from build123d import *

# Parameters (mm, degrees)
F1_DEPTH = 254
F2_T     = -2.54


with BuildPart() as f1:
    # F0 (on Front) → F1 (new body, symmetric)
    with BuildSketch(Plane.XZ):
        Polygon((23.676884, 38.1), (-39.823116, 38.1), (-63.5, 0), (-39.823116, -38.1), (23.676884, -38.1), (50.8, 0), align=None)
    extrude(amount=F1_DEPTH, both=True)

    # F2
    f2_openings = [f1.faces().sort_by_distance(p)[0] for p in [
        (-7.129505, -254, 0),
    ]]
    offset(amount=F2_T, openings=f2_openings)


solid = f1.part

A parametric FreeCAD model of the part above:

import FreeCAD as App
import Part
import Sketcher
Q = App.Units.Quantity


def faces_at(feature, points):
    """Names of the faces that lie closest to the given points."""
    faces = feature.Shape.Faces
    near = lambda p: min(range(len(faces)), key=lambda i: faces[i].distToShape(Part.Vertex(*p))[0])
    return sorted({f"Face{near(p) + 1}" for p in points})

doc = App.newDocument("Part")
params = doc.addObject("Spreadsheet::Sheet", "Params")
for row, (alias, value) in enumerate([
    ("sketch1_width", "2.5 in"),
    ("pad1_length", "20 in"),
    ("thickness_wall", "0.1 in"),
], start=1):
    params.set(f"A{row}", alias)
    params.set(f"B{row}", "=" + value)
    params.setAlias(f"B{row}", alias)

body = doc.addObject("PartDesign::Body", "Body")

# Sketch on XZ plane
sketch1 = body.newObject("Sketcher::SketchObject", "Sketch")
sketch1.AttachmentSupport = (doc.getObject("XZ_Plane"), [""])
sketch1.MapMode = "FlatFace"
sketch1.addGeometry([
    Part.LineSegment(App.Vector(24, 38, 0), App.Vector(-40, 38, 0)),  # 0
    Part.LineSegment(App.Vector(-40, 38, 0), App.Vector(-64, 0, 0)),  # 1
    Part.LineSegment(App.Vector(-64, 0, 0), App.Vector(-40, -38, 0)),  # 2
    Part.LineSegment(App.Vector(-40, -38, 0), App.Vector(24, -38, 0)),  # 3
    Part.LineSegment(App.Vector(24, -38, 0), App.Vector(51, 0, 0)),  # 4
    Part.LineSegment(App.Vector(51, 0, 0), App.Vector(24, 38, 0)),  # 5
], False)
sketch1.addConstraint([
    Sketcher.Constraint("Coincident", 0, 2, 1, 1),
    Sketcher.Constraint("Coincident", 1, 2, 2, 1),
    Sketcher.Constraint("Coincident", 2, 2, 3, 1),
    Sketcher.Constraint("Coincident", 3, 2, 4, 1),
    Sketcher.Constraint("Coincident", 4, 2, 5, 1),
    Sketcher.Constraint("Coincident", 5, 2, 0, 1),
    Sketcher.Constraint("Horizontal", 0),
    Sketcher.Constraint("Horizontal", 3),
    Sketcher.Constraint("Symmetric", 0, 2, 2, 2, -1),
    Sketcher.Constraint("PointOnObject", 1, 2, -1),
    Sketcher.Constraint("PointOnObject", 4, 2, -1),
    Sketcher.Constraint("Vertical", 3, 2, 5, 2),
    Sketcher.Constraint("DistanceX", 0, 2, 0, 1, Q("2.5 in")),
    Sketcher.Constraint("DistanceX", -1, 1, 4, 2, Q("2 in")),
    Sketcher.Constraint("DistanceY", 2, 2, 0, 2, Q("3 in")),
    Sketcher.Constraint("DistanceX", 1, 2, -1, 1, Q("2.5 in")),
    Sketcher.Constraint("Distance", 1, Q("44.857606 mm")),
])
sketch1.setExpression("Constraints[12]", "Params.sketch1_width")
pad1 = body.newObject("PartDesign::Pad", "Pad")
pad1.Profile = sketch1
pad1.setExpression("Length", "Params.pad1_length")
pad1.Midplane = True
doc.recompute()

thickness = body.newObject("PartDesign::Thickness", "Thickness")
thickness.Base = (pad1, faces_at(pad1, [(-6.35, -254, 0)]))
thickness.setExpression("Value", "Params.thickness_wall")
thickness.Reversed = True
thickness.Join = "Arc"

doc.recompute()
